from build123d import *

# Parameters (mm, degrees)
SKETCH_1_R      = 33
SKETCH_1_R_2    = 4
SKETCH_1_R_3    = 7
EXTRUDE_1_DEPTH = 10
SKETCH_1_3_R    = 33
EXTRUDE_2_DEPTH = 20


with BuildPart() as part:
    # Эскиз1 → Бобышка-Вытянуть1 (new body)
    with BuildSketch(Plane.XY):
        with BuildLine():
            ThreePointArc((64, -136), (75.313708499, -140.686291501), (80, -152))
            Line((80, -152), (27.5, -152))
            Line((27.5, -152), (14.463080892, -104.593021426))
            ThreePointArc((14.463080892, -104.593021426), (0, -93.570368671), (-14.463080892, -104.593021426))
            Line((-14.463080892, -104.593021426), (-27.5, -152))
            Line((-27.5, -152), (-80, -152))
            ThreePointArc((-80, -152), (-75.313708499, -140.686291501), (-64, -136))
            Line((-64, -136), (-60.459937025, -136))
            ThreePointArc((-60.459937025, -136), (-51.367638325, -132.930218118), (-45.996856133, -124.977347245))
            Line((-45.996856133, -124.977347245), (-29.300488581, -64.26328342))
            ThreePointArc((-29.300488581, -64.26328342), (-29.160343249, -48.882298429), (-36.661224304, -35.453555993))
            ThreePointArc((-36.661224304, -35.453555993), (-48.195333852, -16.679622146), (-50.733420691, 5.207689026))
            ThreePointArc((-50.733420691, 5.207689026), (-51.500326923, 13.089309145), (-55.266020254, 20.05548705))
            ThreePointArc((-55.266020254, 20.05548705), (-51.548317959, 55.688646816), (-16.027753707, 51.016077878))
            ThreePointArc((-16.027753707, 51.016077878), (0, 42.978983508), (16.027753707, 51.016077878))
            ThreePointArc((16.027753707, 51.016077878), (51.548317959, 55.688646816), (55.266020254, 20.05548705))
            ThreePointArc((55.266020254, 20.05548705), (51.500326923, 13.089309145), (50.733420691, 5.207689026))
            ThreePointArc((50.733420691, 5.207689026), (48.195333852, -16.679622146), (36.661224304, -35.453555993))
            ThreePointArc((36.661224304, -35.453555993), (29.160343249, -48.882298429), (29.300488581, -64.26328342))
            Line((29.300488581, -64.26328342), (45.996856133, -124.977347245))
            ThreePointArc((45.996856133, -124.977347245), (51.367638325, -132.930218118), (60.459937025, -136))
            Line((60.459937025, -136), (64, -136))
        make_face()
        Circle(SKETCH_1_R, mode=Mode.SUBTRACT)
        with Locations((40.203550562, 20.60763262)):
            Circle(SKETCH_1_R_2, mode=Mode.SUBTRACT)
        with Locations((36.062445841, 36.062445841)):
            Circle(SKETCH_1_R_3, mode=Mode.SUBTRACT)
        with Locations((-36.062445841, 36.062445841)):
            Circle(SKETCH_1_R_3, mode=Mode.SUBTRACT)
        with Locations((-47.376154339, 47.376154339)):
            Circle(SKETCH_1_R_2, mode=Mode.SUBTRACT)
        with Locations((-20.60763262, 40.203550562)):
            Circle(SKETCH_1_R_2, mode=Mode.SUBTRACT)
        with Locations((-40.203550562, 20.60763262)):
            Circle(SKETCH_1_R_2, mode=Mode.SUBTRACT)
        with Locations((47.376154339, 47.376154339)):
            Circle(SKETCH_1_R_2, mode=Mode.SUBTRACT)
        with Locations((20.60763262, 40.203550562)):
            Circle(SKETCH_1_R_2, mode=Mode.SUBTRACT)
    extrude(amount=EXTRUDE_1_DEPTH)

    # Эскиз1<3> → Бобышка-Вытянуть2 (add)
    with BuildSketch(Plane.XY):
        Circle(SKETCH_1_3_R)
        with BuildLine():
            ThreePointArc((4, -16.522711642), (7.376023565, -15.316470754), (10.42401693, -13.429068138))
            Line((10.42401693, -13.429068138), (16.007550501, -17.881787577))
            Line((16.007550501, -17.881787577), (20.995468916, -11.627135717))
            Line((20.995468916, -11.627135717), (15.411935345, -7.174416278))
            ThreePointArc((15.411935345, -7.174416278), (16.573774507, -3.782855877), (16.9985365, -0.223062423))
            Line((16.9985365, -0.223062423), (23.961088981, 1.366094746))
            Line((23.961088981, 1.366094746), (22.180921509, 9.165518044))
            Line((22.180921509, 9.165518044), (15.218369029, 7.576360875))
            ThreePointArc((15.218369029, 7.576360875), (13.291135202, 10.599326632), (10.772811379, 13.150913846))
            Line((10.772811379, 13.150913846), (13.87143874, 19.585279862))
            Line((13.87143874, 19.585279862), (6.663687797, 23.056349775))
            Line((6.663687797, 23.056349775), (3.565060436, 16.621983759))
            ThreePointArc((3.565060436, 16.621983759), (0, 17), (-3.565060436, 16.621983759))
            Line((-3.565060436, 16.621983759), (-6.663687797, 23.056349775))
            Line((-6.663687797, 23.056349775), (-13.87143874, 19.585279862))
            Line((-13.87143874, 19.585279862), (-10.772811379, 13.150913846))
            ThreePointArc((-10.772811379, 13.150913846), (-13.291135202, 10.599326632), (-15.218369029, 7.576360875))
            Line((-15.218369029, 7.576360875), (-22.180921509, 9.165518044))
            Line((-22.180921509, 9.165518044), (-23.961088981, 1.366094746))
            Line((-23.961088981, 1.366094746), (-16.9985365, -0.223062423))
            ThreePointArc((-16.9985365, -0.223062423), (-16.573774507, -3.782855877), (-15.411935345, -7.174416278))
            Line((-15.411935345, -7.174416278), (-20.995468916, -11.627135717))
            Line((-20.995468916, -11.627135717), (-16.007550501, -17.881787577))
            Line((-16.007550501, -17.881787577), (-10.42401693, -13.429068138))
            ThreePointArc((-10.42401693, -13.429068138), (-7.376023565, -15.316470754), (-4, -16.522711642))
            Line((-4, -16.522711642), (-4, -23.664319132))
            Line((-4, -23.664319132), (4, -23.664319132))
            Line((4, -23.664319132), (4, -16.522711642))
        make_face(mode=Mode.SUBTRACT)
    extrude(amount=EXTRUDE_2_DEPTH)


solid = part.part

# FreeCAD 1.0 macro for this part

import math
import FreeCAD as App
import Part
import Sketcher

V = App.Vector
Q = App.Units.Quantity

doc = App.newDocument("Part")
body = doc.addObject("PartDesign::Body", "Body")

# Sketch on XY plane
sketch1 = body.newObject("Sketcher::SketchObject", "Sketch")
sketch1.AttachmentSupport = (doc.getObject("XY_Plane"), [""])
sketch1.MapMode = "FlatFace"
sketch1.addGeometry(Part.ArcOfCircle(Part.Circle(V(64, -152, 0), V(0, 0, 1), 16), math.radians(0), math.radians(90)), False)
sketch1.addGeometry(Part.LineSegment(V(64, -136, 0), V(60.459937, -136, 0)), False)
sketch1.addGeometry(Part.ArcOfCircle(Part.Circle(V(60.459937, -121, 0), V(0, 0, 1), 15), math.radians(-164.623749), math.radians(-90)), False)
sketch1.addGeometry(Part.LineSegment(V(45.996856, -124.977347, 0), V(29.300489, -64.263283, 0)), False)
sketch1.addGeometry(Part.ArcOfCircle(Part.Circle(V(58.22665, -56.308589, 0), V(0, 0, 1), 30), math.radians(135.959413), math.radians(195.376251)), False)
sketch1.addGeometry(Part.ArcOfCircle(Part.Circle(V(0, 0, 0), V(0, 0, 1), 51), math.radians(-44.040587), math.radians(5.860776)), False)
sketch1.addGeometry(Part.ArcOfCircle(Part.Circle(V(70.62888, 7.24992, 0), V(0, 0, 1), 20), math.radians(140.187421), math.radians(185.860776)), False)
sketch1.addGeometry(Part.ArcOfCircle(Part.Circle(V(36.062446, 36.062446, 0), V(0, 0, 1), 25), math.radians(-39.812579), math.radians(143.262822)), False)
sketch1.addGeometry(Part.ArcOfCircle(Part.Circle(V(0, 62.978984, 0), V(0, 0, 1), 20), math.radians(-143.262822), math.radians(-36.737178)), False)
sketch1.addGeometry(Part.ArcOfCircle(Part.Circle(V(-36.062446, 36.062446, 0), V(0, 0, 1), 25), math.radians(36.737178), math.radians(219.812579)), False)
sketch1.addGeometry(Part.ArcOfCircle(Part.Circle(V(-70.62888, 7.24992, 0), V(0, 0, 1), 20), math.radians(-5.860776), math.radians(39.812579)), False)
sketch1.addGeometry(Part.ArcOfCircle(Part.Circle(V(0, 0, 0), V(0, 0, 1), 51), math.radians(174.139224), math.radians(224.040587)), False)
sketch1.addGeometry(Part.ArcOfCircle(Part.Circle(V(-58.22665, -56.308589, 0), V(0, 0, 1), 30), math.radians(-15.376251), math.radians(44.040587)), False)
sketch1.addGeometry(Part.LineSegment(V(-29.300489, -64.263283, 0), V(-45.996856, -124.977347, 0)), False)
sketch1.addGeometry(Part.ArcOfCircle(Part.Circle(V(-60.459937, -121, 0), V(0, 0, 1), 15), math.radians(-90), math.radians(-15.376251)), False)
sketch1.addGeometry(Part.LineSegment(V(-60.459937, -136, 0), V(-64, -136, 0)), False)
sketch1.addGeometry(Part.ArcOfCircle(Part.Circle(V(-64, -152, 0), V(0, 0, 1), 16), math.radians(90), math.radians(180)), False)
sketch1.addGeometry(Part.LineSegment(V(-80, -152, 0), V(-27.5, -152, 0)), False)
sketch1.addGeometry(Part.LineSegment(V(-27.5, -152, 0), V(-14.463081, -104.593021, 0)), False)
sketch1.addGeometry(Part.ArcOfCircle(Part.Circle(V(0, -108.570369, 0), V(0, 0, 1), 15), math.radians(15.376251), math.radians(164.623749)), False)
sketch1.addGeometry(Part.LineSegment(V(14.463081, -104.593021, 0), V(27.5, -152, 0)), False)
sketch1.addGeometry(Part.LineSegment(V(27.5, -152, 0), V(80, -152, 0)), False)
sketch1.addGeometry(Part.Circle(V(0, 0, 0), V(0, 0, 1), 33), False)
sketch1.addGeometry(Part.Circle(V(40.203551, 20.607633, 0), V(0, 0, 1), 4), False)
sketch1.addGeometry(Part.Circle(V(36.062446, 36.062446, 0), V(0, 0, 1), 7), False)
sketch1.addGeometry(Part.Circle(V(47.376154, 47.376154, 0), V(0, 0, 1), 4), False)
sketch1.addGeometry(Part.Circle(V(20.607633, 40.203551, 0), V(0, 0, 1), 4), False)
sketch1.addGeometry(Part.Circle(V(-40.203551, 20.607633, 0), V(0, 0, 1), 4), False)
sketch1.addGeometry(Part.Circle(V(-20.607633, 40.203551, 0), V(0, 0, 1), 4), False)
sketch1.addGeometry(Part.Circle(V(-36.062446, 36.062446, 0), V(0, 0, 1), 7), False)
sketch1.addGeometry(Part.Circle(V(-47.376154, 47.376154, 0), V(0, 0, 1), 4), False)
sketch1.addConstraint(Sketcher.Constraint("Tangent", 0, 2, 1, 1))
sketch1.addConstraint(Sketcher.Constraint("Tangent", 1, 2, 2, 2))
sketch1.addConstraint(Sketcher.Constraint("Tangent", 2, 1, 3, 1))
sketch1.addConstraint(Sketcher.Constraint("Tangent", 3, 2, 4, 2))
sketch1.addConstraint(Sketcher.Constraint("Tangent", 4, 1, 5, 1))
sketch1.addConstraint(Sketcher.Constraint("Tangent", 5, 2, 6, 2))
sketch1.addConstraint(Sketcher.Constraint("Tangent", 6, 1, 7, 1))
sketch1.addConstraint(Sketcher.Constraint("Tangent", 7, 2, 8, 2))
sketch1.addConstraint(Sketcher.Constraint("Tangent", 8, 1, 9, 1))
sketch1.addConstraint(Sketcher.Constraint("Tangent", 9, 2, 10, 2))
sketch1.addConstraint(Sketcher.Constraint("Tangent", 10, 1, 11, 1))
sketch1.addConstraint(Sketcher.Constraint("Tangent", 11, 2, 12, 2))
sketch1.addConstraint(Sketcher.Constraint("Tangent", 12, 1, 13, 1))
sketch1.addConstraint(Sketcher.Constraint("Tangent", 13, 2, 14, 2))
sketch1.addConstraint(Sketcher.Constraint("Tangent", 14, 1, 15, 1))
sketch1.addConstraint(Sketcher.Constraint("Tangent", 15, 2, 16, 1))
sketch1.addConstraint(Sketcher.Constraint("Coincident", 16, 2, 17, 1))
sketch1.addConstraint(Sketcher.Constraint("Coincident", 17, 2, 18, 1))
sketch1.addConstraint(Sketcher.Constraint("Tangent", 18, 2, 19, 2))
sketch1.addConstraint(Sketcher.Constraint("Tangent", 19, 1, 20, 1))
sketch1.addConstraint(Sketcher.Constraint("Coincident", 20, 2, 21, 1))
sketch1.addConstraint(Sketcher.Constraint("Coincident", 21, 2, 0, 1))
sketch1.addConstraint(Sketcher.Constraint("Horizontal", 1))
sketch1.addConstraint(Sketcher.Constraint("Horizontal", 15))
sketch1.addConstraint(Sketcher.Constraint("Horizontal", 17))
sketch1.addConstraint(Sketcher.Constraint("Horizontal", 21))
sketch1.addConstraint(Sketcher.Constraint("Coincident", 5, 3, -1, 1))
sketch1.addConstraint(Sketcher.Constraint("Coincident", 11, 3, -1, 1))
sketch1.addConstraint(Sketcher.Constraint("Coincident", 22, 3, -1, 1))
sketch1.addConstraint(Sketcher.Constraint("Coincident", 24, 3, 7, 3))
sketch1.addConstraint(Sketcher.Constraint("Coincident", 29, 3, 9, 3))
sketch1.addConstraint(Sketcher.Constraint("Equal", 6, 8))
sketch1.addConstraint(Sketcher.Constraint("Equal", 7, 9))
sketch1.addConstraint(Sketcher.Constraint("Equal", 8, 10))
sketch1.addConstraint(Sketcher.Constraint("Equal", 5, 11))
sketch1.addConstraint(Sketcher.Constraint("Equal", 4, 12))
sketch1.addConstraint(Sketcher.Constraint("Equal", 2, 14))
sketch1.addConstraint(Sketcher.Constraint("Equal", 0, 16))
sketch1.addConstraint(Sketcher.Constraint("Equal", 14, 19))
sketch1.addConstraint(Sketcher.Constraint("Equal", 23, 25))
sketch1.addConstraint(Sketcher.Constraint("Equal", 25, 26))
sketch1.addConstraint(Sketcher.Constraint("Equal", 26, 27))
sketch1.addConstraint(Sketcher.Constraint("Equal", 27, 28))
sketch1.addConstraint(Sketcher.Constraint("Equal", 24, 29))
sketch1.addConstraint(Sketcher.Constraint("Equal", 28, 30))
sketch1.addConstraint(Sketcher.Constraint("Symmetric", 7, 3, 9, 3, -2))
sketch1.addConstraint(Sketcher.Constraint("Symmetric", 2, 3, 14, 3, -2))
sketch1.addConstraint(Sketcher.Constraint("Symmetric", 23, 3, 27, 3, -2))
sketch1.addConstraint(Sketcher.Constraint("Symmetric", 26, 3, 28, 3, -2))
sketch1.addConstraint(Sketcher.Constraint("Symmetric", 25, 3, 30, 3, -2))
sketch1.addConstraint(Sketcher.Constraint("Symmetric", 18, 2, 19, 1, -2))
sketch1.addConstraint(Sketcher.Constraint("Symmetric", 16, 2, 21, 2, -2))
sketch1.addConstraint(Sketcher.Constraint("Parallel", 13, 18))
sketch1.addConstraint(Sketcher.Constraint("Parallel", 3, 20))
sketch1.addConstraint(Sketcher.Constraint("Horizontal", 0, 3, 16, 2))
sketch1.addConstraint(Sketcher.Constraint("Diameter", 22, Q("66 mm")))
sketch1.addConstraint(Sketcher.Constraint("Diameter", 23, Q("8 mm")))
sketch1.addConstraint(Sketcher.Constraint("Diameter", 24, Q("14 mm")))
sketch1.addConstraint(Sketcher.Constraint("Radius", 0, Q("16 mm")))
sketch1.addConstraint(Sketcher.Constraint("Radius", 2, Q("15 mm")))
sketch1.addConstraint(Sketcher.Constraint("Radius", 4, Q("30 mm")))
sketch1.addConstraint(Sketcher.Constraint("Radius", 5, Q("51 mm")))
sketch1.addConstraint(Sketcher.Constraint("Radius", 6, Q("20 mm")))
sketch1.addConstraint(Sketcher.Constraint("Radius", 7, Q("25 mm")))
sketch1.addConstraint(Sketcher.Constraint("DistanceX", 17, 1, 17, 2, Q("52.5 mm")))
sketch1.addConstraint(Sketcher.Constraint("DistanceX", -1, 1, 0, 3, Q("64 mm")))
sketch1.addConstraint(Sketcher.Constraint("DistanceY", 0, 3, -1, 1, Q("152 mm")))
sketch1.addConstraint(Sketcher.Constraint("DistanceX", 12, 3, 4, 3, Q("116.453301 mm")))
sketch1.addConstraint(Sketcher.Constraint("DistanceX", 5, 2, 6, 1, Q("4.5326 mm")))
sketch1.addConstraint(Sketcher.Constraint("DistanceY", 5, 2, 6, 1, Q("14.847798 mm")))
sketch1.addConstraint(Sketcher.Constraint("DistanceX", 7, 2, 25, 3, Q("31.348401 mm")))
sketch1.addConstraint(Sketcher.Constraint("Distance", 18, Q("49.166888 mm")))
sketch1.addConstraint(Sketcher.Constraint("DistanceX", -1, 1, 23, 3, Q("40.203551 mm")))
sketch1.addConstraint(Sketcher.Constraint("DistanceY", -1, 1, 26, 3, Q("40.203551 mm")))
sketch1.addConstraint(Sketcher.Constraint("DistanceY", 7, 3, 25, 3, Q("11.313708 mm")))
sketch1.addConstraint(Sketcher.Constraint("DistanceY", 23, 3, 25, 3, Q("26.768522 mm")))
sketch1.addConstraint(Sketcher.Constraint("DistanceX", 26, 3, 25, 3, Q("26.768522 mm")))
pad1 = body.newObject("PartDesign::Pad", "Pad")
pad1.Profile = sketch1
pad1.Length = 10

# Sketch on XY plane
sketch2 = body.newObject("Sketcher::SketchObject", "Sketch001")
sketch2.AttachmentSupport = (doc.getObject("XY_Plane"), [""])
sketch2.MapMode = "FlatFace"
sketch2.addGeometry(Part.Circle(V(0, 0, 0), V(0, 0, 1), 33), False)
sketch2.addGeometry(Part.ArcOfCircle(Part.Circle(V(0, 0, 0), V(0, 0, 1), 17), math.radians(-76.391039), math.radians(-52.180389)), False)
sketch2.addGeometry(Part.LineSegment(V(4, -16.522712, 0), V(4, -23.664319, 0)), False)
sketch2.addGeometry(Part.LineSegment(V(4, -23.664319, 0), V(-4, -23.664319, 0)), False)
sketch2.addGeometry(Part.LineSegment(V(-4, -23.664319, 0), V(-4, -16.522712, 0)), False)
sketch2.addGeometry(Part.ArcOfCircle(Part.Circle(V(0, 0, 0), V(0, 0, 1), 17), math.radians(-127.819611), math.radians(-103.608961)), False)
sketch2.addGeometry(Part.LineSegment(V(-10.424017, -13.429068, 0), V(-16.007551, -17.881788, 0)), False)
sketch2.addGeometry(Part.LineSegment(V(-16.007551, -17.881788, 0), V(-20.995469, -11.627136, 0)), False)
sketch2.addGeometry(Part.LineSegment(V(-20.995469, -11.627136, 0), V(-15.411935, -7.174416, 0)), False)
sketch2.addGeometry(Part.ArcOfCircle(Part.Circle(V(0, 0, 0), V(0, 0, 1), 17), math.radians(-179.248182), math.radians(-155.037532)), False)
sketch2.addGeometry(Part.LineSegment(V(-16.998537, -0.223062, 0), V(-23.961089, 1.366095, 0)), False)
sketch2.addGeometry(Part.LineSegment(V(-23.961089, 1.366095, 0), V(-22.180922, 9.165518, 0)), False)
sketch2.addGeometry(Part.LineSegment(V(-22.180922, 9.165518, 0), V(-15.218369, 7.576361, 0)), False)
sketch2.addGeometry(Part.ArcOfCircle(Part.Circle(V(0, 0, 0), V(0, 0, 1), 17), math.radians(129.323246), math.radians(153.533897)), False)
sketch2.addGeometry(Part.LineSegment(V(-10.772811, 13.150914, 0), V(-13.871439, 19.58528, 0)), False)
sketch2.addGeometry(Part.LineSegment(V(-13.871439, 19.58528, 0), V(-6.663688, 23.05635, 0)), False)
sketch2.addGeometry(Part.LineSegment(V(-6.663688, 23.05635, 0), V(-3.56506, 16.621984, 0)), False)
sketch2.addGeometry(Part.ArcOfCircle(Part.Circle(V(0, 0, 0), V(0, 0, 1), 17), math.radians(77.894675), math.radians(102.105325)), False)
sketch2.addGeometry(Part.LineSegment(V(3.56506, 16.621984, 0), V(6.663688, 23.05635, 0)), False)
sketch2.addGeometry(Part.LineSegment(V(6.663688, 23.05635, 0), V(13.871439, 19.58528, 0)), False)
sketch2.addGeometry(Part.LineSegment(V(13.871439, 19.58528, 0), V(10.772811, 13.150914, 0)), False)
sketch2.addGeometry(Part.ArcOfCircle(Part.Circle(V(0, 0, 0), V(0, 0, 1), 17), math.radians(26.466103), math.radians(50.676754)), False)
sketch2.addGeometry(Part.LineSegment(V(15.218369, 7.576361, 0), V(22.180922, 9.165518, 0)), False)
sketch2.addGeometry(Part.LineSegment(V(22.180922, 9.165518, 0), V(23.961089, 1.366095, 0)), False)
sketch2.addGeometry(Part.LineSegment(V(23.961089, 1.366095, 0), V(16.998537, -0.223062, 0)), False)
sketch2.addGeometry(Part.ArcOfCircle(Part.Circle(V(0, 0, 0), V(0, 0, 1), 17), math.radians(-24.962468), math.radians(-0.751818)), False)
sketch2.addGeometry(Part.LineSegment(V(15.411935, -7.174416, 0), V(20.995469, -11.627136, 0)), False)
sketch2.addGeometry(Part.LineSegment(V(20.995469, -11.627136, 0), V(16.007551, -17.881788, 0)), False)
sketch2.addGeometry(Part.LineSegment(V(16.007551, -17.881788, 0), V(10.424017, -13.429068, 0)), False)
sketch2.addConstraint(Sketcher.Constraint("Coincident", 1, 1, 2, 1))
sketch2.addConstraint(Sketcher.Constraint("Coincident", 2, 2, 3, 1))
sketch2.addConstraint(Sketcher.Constraint("Coincident", 3, 2, 4, 1))
sketch2.addConstraint(Sketcher.Constraint("Coincident", 4, 2, 5, 2))
sketch2.addConstraint(Sketcher.Constraint("Coincident", 5, 1, 6, 1))
sketch2.addConstraint(Sketcher.Constraint("Coincident", 6, 2, 7, 1))
sketch2.addConstraint(Sketcher.Constraint("Coincident", 7, 2, 8, 1))
sketch2.addConstraint(Sketcher.Constraint("Coincident", 8, 2, 9, 2))
sketch2.addConstraint(Sketcher.Constraint("Coincident", 9, 1, 10, 1))
sketch2.addConstraint(Sketcher.Constraint("Coincident", 10, 2, 11, 1))
sketch2.addConstraint(Sketcher.Constraint("Coincident", 11, 2, 12, 1))
sketch2.addConstraint(Sketcher.Constraint("Coincident", 12, 2, 13, 2))
sketch2.addConstraint(Sketcher.Constraint("Coincident", 13, 1, 14, 1))
sketch2.addConstraint(Sketcher.Constraint("Coincident", 14, 2, 15, 1))
sketch2.addConstraint(Sketcher.Constraint("Coincident", 15, 2, 16, 1))
sketch2.addConstraint(Sketcher.Constraint("Coincident", 16, 2, 17, 2))
sketch2.addConstraint(Sketcher.Constraint("Coincident", 17, 1, 18, 1))
sketch2.addConstraint(Sketcher.Constraint("Coincident", 18, 2, 19, 1))
sketch2.addConstraint(Sketcher.Constraint("Coincident", 19, 2, 20, 1))
sketch2.addConstraint(Sketcher.Constraint("Coincident", 20, 2, 21, 2))
sketch2.addConstraint(Sketcher.Constraint("Coincident", 21, 1, 22, 1))
sketch2.addConstraint(Sketcher.Constraint("Coincident", 22, 2, 23, 1))
sketch2.addConstraint(Sketcher.Constraint("Coincident", 23, 2, 24, 1))
sketch2.addConstraint(Sketcher.Constraint("Coincident", 24, 2, 25, 2))
sketch2.addConstraint(Sketcher.Constraint("Coincident", 25, 1, 26, 1))
sketch2.addConstraint(Sketcher.Constraint("Coincident", 26, 2, 27, 1))
sketch2.addConstraint(Sketcher.Constraint("Coincident", 27, 2, 28, 1))
sketch2.addConstraint(Sketcher.Constraint("Coincident", 28, 2, 1, 2))
sketch2.addConstraint(Sketcher.Constraint("Vertical", 2))
sketch2.addConstraint(Sketcher.Constraint("Horizontal", 3))
sketch2.addConstraint(Sketcher.Constraint("Vertical", 4))
sketch2.addConstraint(Sketcher.Constraint("Coincident", 0, 3, -1, 1))
sketch2.addConstraint(Sketcher.Constraint("Coincident", 1, 3, -1, 1))
sketch2.addConstraint(Sketcher.Constraint("Coincident", 5, 3, -1, 1))
sketch2.addConstraint(Sketcher.Constraint("Coincident", 9, 3, -1, 1))
sketch2.addConstraint(Sketcher.Constraint("Coincident", 13, 3, -1, 1))
sketch2.addConstraint(Sketcher.Constraint("Coincident", 17, 3, -1, 1))
sketch2.addConstraint(Sketcher.Constraint("Coincident", 21, 3, -1, 1))
sketch2.addConstraint(Sketcher.Constraint("Coincident", 25, 3, -1, 1))
sketch2.addConstraint(Sketcher.Constraint("Equal", 1, 5))
sketch2.addConstraint(Sketcher.Constraint("Equal", 5, 9))
sketch2.addConstraint(Sketcher.Constraint("Equal", 9, 13))
sketch2.addConstraint(Sketcher.Constraint("Equal", 13, 17))
sketch2.addConstraint(Sketcher.Constraint("Equal", 17, 21))
sketch2.addConstraint(Sketcher.Constraint("Equal", 21, 25))
sketch2.addConstraint(Sketcher.Constraint("Symmetric", 15, 2, 18, 2, -2))
sketch2.addConstraint(Sketcher.Constraint("Symmetric", 14, 2, 19, 2, -2))
sketch2.addConstraint(Sketcher.Constraint("Symmetric", 11, 2, 22, 2, -2))
sketch2.addConstraint(Sketcher.Constraint("Symmetric", 10, 2, 23, 2, -2))
sketch2.addConstraint(Sketcher.Constraint("Symmetric", 7, 2, 26, 2, -2))
sketch2.addConstraint(Sketcher.Constraint("Symmetric", 6, 2, 27, 2, -2))
sketch2.addConstraint(Sketcher.Constraint("Perpendicular", 6, 7))
sketch2.addConstraint(Sketcher.Constraint("Perpendicular", 7, 8))
sketch2.addConstraint(Sketcher.Constraint("Perpendicular", 10, 11))
sketch2.addConstraint(Sketcher.Constraint("Perpendicular", 11, 12))
sketch2.addConstraint(Sketcher.Constraint("Perpendicular", 14, 15))
sketch2.addConstraint(Sketcher.Constraint("Perpendicular", 15, 16))
sketch2.addConstraint(Sketcher.Constraint("Perpendicular", 18, 19))
sketch2.addConstraint(Sketcher.Constraint("Perpendicular", 19, 20))
sketch2.addConstraint(Sketcher.Constraint("Perpendicular", 22, 23))
sketch2.addConstraint(Sketcher.Constraint("Perpendicular", 23, 24))
sketch2.addConstraint(Sketcher.Constraint("Perpendicular", 26, 27))
sketch2.addConstraint(Sketcher.Constraint("Perpendicular", 27, 28))
sketch2.addConstraint(Sketcher.Constraint("Horizontal", 1, 1, 4, 2))
sketch2.addConstraint(Sketcher.Constraint("Equal", 6, 8))
sketch2.addConstraint(Sketcher.Constraint("Equal", 8, 10))
sketch2.addConstraint(Sketcher.Constraint("Equal", 7, 11))
sketch2.addConstraint(Sketcher.Constraint("Equal", 10, 12))
sketch2.addConstraint(Sketcher.Constraint("Equal", 12, 14))
sketch2.addConstraint(Sketcher.Constraint("Equal", 11, 15))
sketch2.addConstraint(Sketcher.Constraint("Equal", 14, 16))
sketch2.addConstraint(Sketcher.Constraint("Diameter", 0, Q("66 mm")))
sketch2.addConstraint(Sketcher.Constraint("Radius", 1, Q("17 mm")))
sketch2.addConstraint(Sketcher.Constraint("DistanceX", 3, 2, 3, 1, Q("8 mm")))
sketch2.addConstraint(Sketcher.Constraint("Distance", 7, Q("8 mm")))
sketch2.addConstraint(Sketcher.Constraint("DistanceX", 9, 1, 8, 2, Q("1.586601 mm")))
sketch2.addConstraint(Sketcher.Constraint("DistanceX", 13, 1, 18, 2, Q("17.436499 mm")))
sketch2.addConstraint(Sketcher.Constraint("DistanceX", 21, 1, 26, 2, Q("5.7771 mm")))
sketch2.addConstraint(Sketcher.Constraint("DistanceY", 2, 2, 2, 1, Q("7.141607 mm")))
sketch2.addConstraint(Sketcher.Constraint("DistanceX", 6, 2, -1, 1, Q("16.007551 mm")))
pad2 = body.newObject("PartDesign::Pad", "Pad001")
pad2.Profile = sketch2
pad2.Length = 20

doc.recompute()
